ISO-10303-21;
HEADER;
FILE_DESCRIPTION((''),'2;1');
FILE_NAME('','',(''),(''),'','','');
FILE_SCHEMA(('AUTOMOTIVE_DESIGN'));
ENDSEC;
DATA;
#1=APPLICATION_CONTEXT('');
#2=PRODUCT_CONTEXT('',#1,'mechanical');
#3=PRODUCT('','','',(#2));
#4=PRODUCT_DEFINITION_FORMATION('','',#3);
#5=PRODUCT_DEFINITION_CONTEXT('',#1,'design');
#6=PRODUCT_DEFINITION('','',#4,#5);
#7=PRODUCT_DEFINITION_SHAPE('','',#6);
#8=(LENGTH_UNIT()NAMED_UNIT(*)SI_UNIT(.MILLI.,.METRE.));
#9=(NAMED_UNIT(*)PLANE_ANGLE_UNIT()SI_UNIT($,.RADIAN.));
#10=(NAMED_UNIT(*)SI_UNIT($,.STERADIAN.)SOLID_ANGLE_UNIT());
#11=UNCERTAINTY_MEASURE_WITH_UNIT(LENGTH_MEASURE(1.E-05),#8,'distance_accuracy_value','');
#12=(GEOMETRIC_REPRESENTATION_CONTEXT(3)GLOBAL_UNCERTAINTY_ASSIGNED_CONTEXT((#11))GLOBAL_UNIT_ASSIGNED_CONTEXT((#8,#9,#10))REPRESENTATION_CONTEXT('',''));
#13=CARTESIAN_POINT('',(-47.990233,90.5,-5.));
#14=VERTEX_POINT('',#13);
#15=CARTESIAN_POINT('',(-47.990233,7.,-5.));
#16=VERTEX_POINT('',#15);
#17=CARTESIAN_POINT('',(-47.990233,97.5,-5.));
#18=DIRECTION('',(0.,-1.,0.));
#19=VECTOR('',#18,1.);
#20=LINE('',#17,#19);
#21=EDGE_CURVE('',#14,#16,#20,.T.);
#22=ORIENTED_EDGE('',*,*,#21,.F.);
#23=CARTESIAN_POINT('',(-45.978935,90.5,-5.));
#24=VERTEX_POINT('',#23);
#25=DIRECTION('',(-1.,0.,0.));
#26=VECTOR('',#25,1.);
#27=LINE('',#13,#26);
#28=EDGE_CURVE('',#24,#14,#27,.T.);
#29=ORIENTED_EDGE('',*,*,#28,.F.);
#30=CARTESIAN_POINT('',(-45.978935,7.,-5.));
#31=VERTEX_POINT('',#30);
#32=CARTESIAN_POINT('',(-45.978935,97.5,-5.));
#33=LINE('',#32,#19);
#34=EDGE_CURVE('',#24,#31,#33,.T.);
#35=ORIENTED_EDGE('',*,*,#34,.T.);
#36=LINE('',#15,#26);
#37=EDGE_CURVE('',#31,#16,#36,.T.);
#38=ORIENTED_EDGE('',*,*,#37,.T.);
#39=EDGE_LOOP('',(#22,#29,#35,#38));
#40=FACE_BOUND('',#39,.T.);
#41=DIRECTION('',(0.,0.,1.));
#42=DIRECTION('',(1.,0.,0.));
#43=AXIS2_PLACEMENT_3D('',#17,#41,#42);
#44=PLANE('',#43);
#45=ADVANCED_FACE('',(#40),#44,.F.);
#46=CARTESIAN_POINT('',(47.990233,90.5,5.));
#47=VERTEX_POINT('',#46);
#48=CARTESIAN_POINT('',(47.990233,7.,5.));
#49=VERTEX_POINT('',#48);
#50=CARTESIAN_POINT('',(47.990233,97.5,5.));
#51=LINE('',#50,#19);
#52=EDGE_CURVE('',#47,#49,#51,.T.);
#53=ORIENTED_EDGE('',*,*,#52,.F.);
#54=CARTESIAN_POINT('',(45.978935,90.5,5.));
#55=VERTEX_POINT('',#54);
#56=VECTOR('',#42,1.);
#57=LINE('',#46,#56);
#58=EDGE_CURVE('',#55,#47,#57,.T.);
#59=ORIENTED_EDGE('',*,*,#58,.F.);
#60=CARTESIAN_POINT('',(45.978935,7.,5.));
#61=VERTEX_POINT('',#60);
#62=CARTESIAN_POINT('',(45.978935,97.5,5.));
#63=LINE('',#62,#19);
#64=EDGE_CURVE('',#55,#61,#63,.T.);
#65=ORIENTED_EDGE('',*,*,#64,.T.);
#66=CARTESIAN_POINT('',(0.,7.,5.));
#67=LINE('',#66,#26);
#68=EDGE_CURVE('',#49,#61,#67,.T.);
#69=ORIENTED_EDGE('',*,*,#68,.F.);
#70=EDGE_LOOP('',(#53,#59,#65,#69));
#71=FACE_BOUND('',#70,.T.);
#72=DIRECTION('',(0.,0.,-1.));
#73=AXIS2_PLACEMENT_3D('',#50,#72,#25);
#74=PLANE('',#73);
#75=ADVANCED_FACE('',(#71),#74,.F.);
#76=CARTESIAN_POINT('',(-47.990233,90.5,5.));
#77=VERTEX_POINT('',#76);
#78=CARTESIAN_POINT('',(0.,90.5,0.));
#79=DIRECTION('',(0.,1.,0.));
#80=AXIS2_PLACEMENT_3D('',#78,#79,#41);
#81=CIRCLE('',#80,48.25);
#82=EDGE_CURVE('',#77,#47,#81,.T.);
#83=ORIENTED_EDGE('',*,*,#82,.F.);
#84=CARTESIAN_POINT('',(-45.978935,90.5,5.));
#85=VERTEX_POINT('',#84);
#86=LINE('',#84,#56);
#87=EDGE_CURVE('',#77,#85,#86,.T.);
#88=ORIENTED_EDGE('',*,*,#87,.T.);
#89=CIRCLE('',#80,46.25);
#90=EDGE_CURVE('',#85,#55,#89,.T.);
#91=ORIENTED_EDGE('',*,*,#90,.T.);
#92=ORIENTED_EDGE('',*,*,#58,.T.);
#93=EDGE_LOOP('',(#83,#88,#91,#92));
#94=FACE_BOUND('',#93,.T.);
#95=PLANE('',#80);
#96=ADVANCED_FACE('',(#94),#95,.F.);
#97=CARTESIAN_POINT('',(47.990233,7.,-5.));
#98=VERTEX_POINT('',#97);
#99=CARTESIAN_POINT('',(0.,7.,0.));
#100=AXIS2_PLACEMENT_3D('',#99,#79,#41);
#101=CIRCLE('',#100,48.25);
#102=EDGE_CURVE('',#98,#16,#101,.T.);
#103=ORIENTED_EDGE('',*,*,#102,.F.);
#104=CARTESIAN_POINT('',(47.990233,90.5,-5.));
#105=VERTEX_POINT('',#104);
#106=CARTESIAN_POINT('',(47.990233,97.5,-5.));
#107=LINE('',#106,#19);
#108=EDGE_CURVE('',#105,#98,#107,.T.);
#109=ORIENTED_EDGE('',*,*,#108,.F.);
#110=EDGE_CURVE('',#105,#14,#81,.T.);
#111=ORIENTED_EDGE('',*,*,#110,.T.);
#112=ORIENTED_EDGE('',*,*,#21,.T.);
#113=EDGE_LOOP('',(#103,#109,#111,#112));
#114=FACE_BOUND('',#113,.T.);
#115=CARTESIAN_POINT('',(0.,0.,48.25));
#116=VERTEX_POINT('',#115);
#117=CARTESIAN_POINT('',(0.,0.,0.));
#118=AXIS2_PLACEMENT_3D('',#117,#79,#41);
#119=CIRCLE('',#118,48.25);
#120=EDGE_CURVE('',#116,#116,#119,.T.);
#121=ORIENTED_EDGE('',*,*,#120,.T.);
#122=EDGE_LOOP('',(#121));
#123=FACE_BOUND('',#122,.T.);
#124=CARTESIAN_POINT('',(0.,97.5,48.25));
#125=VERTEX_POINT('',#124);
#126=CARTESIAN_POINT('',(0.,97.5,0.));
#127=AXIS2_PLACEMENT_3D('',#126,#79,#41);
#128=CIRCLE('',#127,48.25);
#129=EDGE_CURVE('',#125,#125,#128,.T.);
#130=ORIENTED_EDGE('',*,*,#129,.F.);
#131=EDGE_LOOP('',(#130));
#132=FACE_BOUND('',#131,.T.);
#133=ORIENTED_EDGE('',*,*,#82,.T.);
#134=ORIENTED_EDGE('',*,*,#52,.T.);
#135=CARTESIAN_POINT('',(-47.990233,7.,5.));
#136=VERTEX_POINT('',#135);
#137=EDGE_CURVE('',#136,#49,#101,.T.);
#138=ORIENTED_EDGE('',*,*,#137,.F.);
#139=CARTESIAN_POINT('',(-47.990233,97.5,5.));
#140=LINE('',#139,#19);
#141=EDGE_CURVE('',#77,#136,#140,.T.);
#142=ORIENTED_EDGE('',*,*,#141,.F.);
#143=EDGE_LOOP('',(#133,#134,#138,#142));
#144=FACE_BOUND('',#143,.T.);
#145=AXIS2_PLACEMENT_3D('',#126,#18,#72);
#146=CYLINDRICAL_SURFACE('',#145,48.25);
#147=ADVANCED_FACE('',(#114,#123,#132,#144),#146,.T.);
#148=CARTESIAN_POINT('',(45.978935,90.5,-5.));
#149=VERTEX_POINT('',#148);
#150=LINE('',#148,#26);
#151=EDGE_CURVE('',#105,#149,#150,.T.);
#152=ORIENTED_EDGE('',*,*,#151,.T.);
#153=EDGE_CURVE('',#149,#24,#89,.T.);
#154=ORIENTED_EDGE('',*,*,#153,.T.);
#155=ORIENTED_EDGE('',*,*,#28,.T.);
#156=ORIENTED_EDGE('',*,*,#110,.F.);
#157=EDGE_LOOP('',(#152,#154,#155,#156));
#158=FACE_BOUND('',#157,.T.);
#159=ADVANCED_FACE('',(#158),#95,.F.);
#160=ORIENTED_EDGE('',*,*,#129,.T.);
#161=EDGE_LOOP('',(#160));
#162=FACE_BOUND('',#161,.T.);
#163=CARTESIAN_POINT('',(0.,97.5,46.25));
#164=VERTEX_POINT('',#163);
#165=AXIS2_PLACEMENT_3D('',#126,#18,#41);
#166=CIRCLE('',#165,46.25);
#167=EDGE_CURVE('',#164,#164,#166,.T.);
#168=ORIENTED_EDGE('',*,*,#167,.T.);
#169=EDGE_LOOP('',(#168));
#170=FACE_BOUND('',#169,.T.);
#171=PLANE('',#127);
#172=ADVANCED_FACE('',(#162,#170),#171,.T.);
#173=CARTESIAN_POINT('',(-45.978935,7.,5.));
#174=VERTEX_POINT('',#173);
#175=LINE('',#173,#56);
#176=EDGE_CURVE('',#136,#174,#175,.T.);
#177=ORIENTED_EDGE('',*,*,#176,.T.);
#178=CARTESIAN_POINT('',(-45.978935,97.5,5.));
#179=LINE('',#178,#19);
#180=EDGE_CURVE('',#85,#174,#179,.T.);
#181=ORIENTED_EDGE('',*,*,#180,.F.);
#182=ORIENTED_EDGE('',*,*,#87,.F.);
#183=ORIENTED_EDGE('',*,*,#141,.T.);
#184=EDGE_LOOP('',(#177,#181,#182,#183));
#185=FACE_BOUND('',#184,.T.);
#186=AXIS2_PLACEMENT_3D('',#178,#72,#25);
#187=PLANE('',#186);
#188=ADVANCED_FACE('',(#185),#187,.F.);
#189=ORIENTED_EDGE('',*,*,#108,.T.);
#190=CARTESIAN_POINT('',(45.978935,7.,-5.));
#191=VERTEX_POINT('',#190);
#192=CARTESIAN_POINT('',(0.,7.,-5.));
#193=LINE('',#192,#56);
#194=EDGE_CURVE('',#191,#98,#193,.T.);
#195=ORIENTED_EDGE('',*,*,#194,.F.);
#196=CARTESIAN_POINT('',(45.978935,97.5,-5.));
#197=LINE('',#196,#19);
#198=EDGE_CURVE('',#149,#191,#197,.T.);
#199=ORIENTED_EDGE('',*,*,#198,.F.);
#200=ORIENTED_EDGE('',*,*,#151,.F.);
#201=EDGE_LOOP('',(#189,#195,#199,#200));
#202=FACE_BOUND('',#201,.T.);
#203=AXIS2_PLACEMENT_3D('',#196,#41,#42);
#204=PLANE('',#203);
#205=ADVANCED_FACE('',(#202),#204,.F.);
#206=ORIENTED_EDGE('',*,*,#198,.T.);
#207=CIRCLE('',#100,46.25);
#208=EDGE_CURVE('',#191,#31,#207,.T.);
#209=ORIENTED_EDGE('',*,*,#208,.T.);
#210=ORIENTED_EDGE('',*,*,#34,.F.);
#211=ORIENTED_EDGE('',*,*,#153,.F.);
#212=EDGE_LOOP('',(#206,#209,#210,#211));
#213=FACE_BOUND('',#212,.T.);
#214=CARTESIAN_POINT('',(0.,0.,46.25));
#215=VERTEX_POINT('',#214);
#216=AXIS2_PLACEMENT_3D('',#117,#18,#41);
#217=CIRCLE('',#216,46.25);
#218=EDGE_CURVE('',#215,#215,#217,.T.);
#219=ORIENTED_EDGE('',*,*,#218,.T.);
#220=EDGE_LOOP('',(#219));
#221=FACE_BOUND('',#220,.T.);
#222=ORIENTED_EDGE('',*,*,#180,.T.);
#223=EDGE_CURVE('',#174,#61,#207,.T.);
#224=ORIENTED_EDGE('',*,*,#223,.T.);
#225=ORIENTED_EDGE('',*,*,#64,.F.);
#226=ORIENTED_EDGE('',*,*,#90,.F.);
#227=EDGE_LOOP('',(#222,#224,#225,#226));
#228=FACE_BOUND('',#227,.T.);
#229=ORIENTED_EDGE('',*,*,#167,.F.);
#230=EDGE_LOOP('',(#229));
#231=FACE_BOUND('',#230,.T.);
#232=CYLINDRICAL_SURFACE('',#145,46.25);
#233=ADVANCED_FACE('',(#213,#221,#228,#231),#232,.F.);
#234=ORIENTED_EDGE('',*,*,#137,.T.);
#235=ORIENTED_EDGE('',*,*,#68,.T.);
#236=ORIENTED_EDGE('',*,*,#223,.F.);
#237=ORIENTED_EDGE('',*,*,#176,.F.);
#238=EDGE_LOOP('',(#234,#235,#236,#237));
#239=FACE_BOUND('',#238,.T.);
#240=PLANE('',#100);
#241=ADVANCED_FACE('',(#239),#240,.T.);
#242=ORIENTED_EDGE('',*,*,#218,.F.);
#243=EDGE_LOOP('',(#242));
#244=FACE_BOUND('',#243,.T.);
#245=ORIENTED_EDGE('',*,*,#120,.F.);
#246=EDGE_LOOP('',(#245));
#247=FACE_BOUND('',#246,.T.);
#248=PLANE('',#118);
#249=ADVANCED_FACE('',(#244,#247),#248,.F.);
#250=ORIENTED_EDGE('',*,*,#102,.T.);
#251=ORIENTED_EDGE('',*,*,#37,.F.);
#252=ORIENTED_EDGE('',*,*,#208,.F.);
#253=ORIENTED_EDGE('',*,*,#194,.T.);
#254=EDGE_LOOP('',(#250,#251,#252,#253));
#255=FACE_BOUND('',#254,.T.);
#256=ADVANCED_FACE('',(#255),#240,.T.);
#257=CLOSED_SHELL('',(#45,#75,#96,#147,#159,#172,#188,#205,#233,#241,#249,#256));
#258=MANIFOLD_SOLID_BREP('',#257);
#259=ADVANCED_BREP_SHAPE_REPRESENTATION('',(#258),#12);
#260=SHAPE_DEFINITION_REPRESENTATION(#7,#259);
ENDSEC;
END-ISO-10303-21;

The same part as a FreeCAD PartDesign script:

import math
import FreeCAD as App
import Part
import Sketcher
from FreeCAD import Vector

doc = App.newDocument("Part")
body = doc.addObject("PartDesign::Body", "Body")

# Sketch on XZ plane
sketch1 = body.newObject("Sketcher::SketchObject", "Sketch")
sketch1.AttachmentSupport = (doc.getObject("XZ_Plane"), [""])
sketch1.MapMode = "FlatFace"
sketch1.addGeometry(Part.LineSegment(Vector(-46, -5, 0), Vector(-48, -5, 0)), False)
sketch1.addGeometry(Part.ArcOfCircle(Part.Circle(Vector(0, 0, 0), Vector(0, 0, 1), 48.2), math.radians(174.05), math.radians(185.95)), False)
sketch1.addGeometry(Part.LineSegment(Vector(-48, 5, 0), Vector(-46, 5, 0)), False)
sketch1.addGeometry(Part.ArcOfCircle(Part.Circle(Vector(0, 0, 0), Vector(0, 0, 1), 46.2), math.radians(173.79), math.radians(186.21)), False)
sketch1.addConstraint(Sketcher.Constraint("Coincident", 0, 2, 1, 2))
sketch1.addConstraint(Sketcher.Constraint("Coincident", 1, 1, 2, 1))
sketch1.addConstraint(Sketcher.Constraint("Coincident", 2, 2, 3, 1))
sketch1.addConstraint(Sketcher.Constraint("Coincident", 3, 2, 0, 1))
sketch1.addConstraint(Sketcher.Constraint("Horizontal", 0))
sketch1.addConstraint(Sketcher.Constraint("Horizontal", 2))
sketch1.addConstraint(Sketcher.Constraint("Coincident", 1, 3, -1, 1))
sketch1.addConstraint(Sketcher.Constraint("Coincident", 3, 3, -1, 1))
sketch1.addConstraint(Sketcher.Constraint("Vertical", 0, 2, 1, 1))
sketch1.addConstraint(Sketcher.Constraint("Radius", 1, 48.25))
sketch1.addConstraint(Sketcher.Constraint("Radius", 3, 46.25))
sketch1.addConstraint(Sketcher.Constraint("DistanceY", 0, 2, -1, 1, 5.0))
pad1 = body.newObject("PartDesign::Pad", "Pad")
pad1.Profile = sketch1
pad1.Length = 97.5
pad1.Reversed = True
body2 = doc.addObject("PartDesign::Body", "Body001")

# Sketch on XZ plane
sketch2 = body2.newObject("Sketcher::SketchObject", "Sketch001")
sketch2.AttachmentSupport = (doc.getObject("XZ_Plane001"), [""])
sketch2.MapMode = "FlatFace"
sketch2.addGeometry(Part.LineSegment(Vector(46, 5, 0), Vector(48, 5, 0)), False)
sketch2.addGeometry(Part.ArcOfCircle(Part.Circle(Vector(0, 0, 0), Vector(0, 0, 1), 48.2), math.radians(-5.95), math.radians(5.95)), False)
sketch2.addGeometry(Part.LineSegment(Vector(48, -5, 0), Vector(46, -5, 0)), False)
sketch2.addGeometry(Part.ArcOfCircle(Part.Circle(Vector(0, 0, 0), Vector(0, 0, 1), 46.2), math.radians(-6.21), math.radians(6.21)), False)
sketch2.addConstraint(Sketcher.Constraint("Coincident", 0, 2, 1, 2))
sketch2.addConstraint(Sketcher.Constraint("Coincident", 1, 1, 2, 1))
sketch2.addConstraint(Sketcher.Constraint("Coincident", 2, 2, 3, 1))
sketch2.addConstraint(Sketcher.Constraint("Coincident", 3, 2, 0, 1))
sketch2.addConstraint(Sketcher.Constraint("Horizontal", 0))
sketch2.addConstraint(Sketcher.Constraint("Horizontal", 2))
sketch2.addConstraint(Sketcher.Constraint("Coincident", 1, 3, -1, 1))
sketch2.addConstraint(Sketcher.Constraint("Coincident", 3, 3, -1, 1))
sketch2.addConstraint(Sketcher.Constraint("Vertical", 0, 2, 1, 1))
sketch2.addConstraint(Sketcher.Constraint("Radius", 1, 48.25))
sketch2.addConstraint(Sketcher.Constraint("Radius", 3, 46.25))
sketch2.addConstraint(Sketcher.Constraint("DistanceY", -1, 1, 0, 2, 5.0))
pad2 = body2.newObject("PartDesign::Pad", "Pad001")
pad2.Profile = sketch2
pad2.Length = 97.5
pad2.Reversed = True
body.AllowCompound = True
doc.recompute()

boolean = body.newObject("PartDesign::Boolean", "Boolean")
boolean.Type = "Fuse"
boolean.addObjects([body2])

# Sketch on XZ plane
sketch3 = body.newObject("Sketcher::SketchObject", "Sketch002")
sketch3.AttachmentSupport = (doc.getObject("XZ_Plane"), [""])
sketch3.MapMode = "FlatFace"
sketch3.addGeometry(Part.Circle(Vector(0, 0, 0), Vector(0, 0, 1), 48), False)
sketch3.addGeometry(Part.Circle(Vector(0, 0, 0), Vector(0, 0, 1), 46), False)
sketch3.addConstraint(Sketcher.Constraint("Coincident", 0, 3, -1, 1))
sketch3.addConstraint(Sketcher.Constraint("Coincident", 1, 3, -1, 1))
sketch3.addConstraint(Sketcher.Constraint("Diameter", 0, 96.5))
sketch3.addConstraint(Sketcher.Constraint("Diameter", 1, 92.5))
pad3 = body.newObject("PartDesign::Pad", "Pad002")
pad3.Profile = sketch3
pad3.Length = 7
pad3.Reversed = True

# Sketch on XZ plane
sketch4 = body.newObject("Sketcher::SketchObject", "Sketch003")
sketch4.AttachmentSupport = (doc.getObject("XZ_Plane"), [""])
sketch4.MapMode = "FlatFace"
sketch4.AttachmentOffset = App.Placement(Vector(0, 0, -90.5), App.Rotation())
sketch4.addGeometry(Part.Circle(Vector(0, 0, 0), Vector(0, 0, 1), 48), False)
sketch4.addGeometry(Part.Circle(Vector(0, 0, 0), Vector(0, 0, 1), 46), False)
sketch4.addConstraint(Sketcher.Constraint("Coincident", 0, 3, -1, 1))
sketch4.addConstraint(Sketcher.Constraint("Coincident", 1, 3, -1, 1))
sketch4.addConstraint(Sketcher.Constraint("Diameter", 0, 96.5))
sketch4.addConstraint(Sketcher.Constraint("Diameter", 1, 92.5))
pad4 = body.newObject("PartDesign::Pad", "Pad003")
pad4.Profile = sketch4
pad4.Length = 7
pad4.Reversed = True

doc.recompute()
